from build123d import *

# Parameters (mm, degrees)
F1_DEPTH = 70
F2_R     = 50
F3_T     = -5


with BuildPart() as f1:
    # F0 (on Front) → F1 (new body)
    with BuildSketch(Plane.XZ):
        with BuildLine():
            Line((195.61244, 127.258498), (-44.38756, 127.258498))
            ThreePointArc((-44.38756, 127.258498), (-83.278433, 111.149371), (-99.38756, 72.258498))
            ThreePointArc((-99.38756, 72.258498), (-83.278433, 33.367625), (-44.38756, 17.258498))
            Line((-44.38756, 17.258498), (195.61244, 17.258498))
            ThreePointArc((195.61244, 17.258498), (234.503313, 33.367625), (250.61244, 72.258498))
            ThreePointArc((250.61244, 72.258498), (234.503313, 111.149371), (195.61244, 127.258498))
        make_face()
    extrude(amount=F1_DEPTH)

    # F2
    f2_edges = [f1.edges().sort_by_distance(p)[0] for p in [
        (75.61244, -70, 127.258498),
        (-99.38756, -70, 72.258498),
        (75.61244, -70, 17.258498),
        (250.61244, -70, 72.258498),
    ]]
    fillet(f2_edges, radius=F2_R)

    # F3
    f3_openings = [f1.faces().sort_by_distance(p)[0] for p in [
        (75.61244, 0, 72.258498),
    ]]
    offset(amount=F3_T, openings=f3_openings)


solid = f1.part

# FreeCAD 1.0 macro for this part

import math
import FreeCAD as App
import Part
import Sketcher
Q = App.Units.Quantity


def edges_at(feature, points):
    """Names of the edges that pass closest to the given points."""
    edges = feature.Shape.Edges
    near = lambda p: min(range(len(edges)), key=lambda i: edges[i].distToShape(Part.Vertex(*p))[0])
    return sorted({f"Edge{near(p) + 1}" for p in points})


def faces_at(feature, points):
    """Names of the faces that lie closest to the given points."""
    faces = feature.Shape.Faces
    near = lambda p: min(range(len(faces)), key=lambda i: faces[i].distToShape(Part.Vertex(*p))[0])
    return sorted({f"Face{near(p) + 1}" for p in points})

doc = App.newDocument("Part")
body = doc.addObject("PartDesign::Body", "Body")

# Sketch on XZ plane
sketch1 = doc.addObject("Sketcher::SketchObject", "Sketch")
body.addObject(sketch1)
sketch1.AttachmentSupport = (doc.XZ_Plane, [""])
sketch1.MapMode = "FlatFace"
sketch1.addGeometry(Part.LineSegment(App.Vector(196, 127, 0), App.Vector(-44, 127, 0)), False)
sketch1.addGeometry(Part.ArcOfCircle(Part.Circle(App.Vector(-44, 72, 0), App.Vector(0, 0, 1), 55), math.radians(90), math.radians(180)), False)
sketch1.addGeometry(Part.ArcOfCircle(Part.Circle(App.Vector(-44, 72, 0), App.Vector(0, 0, 1), 55), math.radians(180), math.radians(270)), False)
sketch1.addGeometry(Part.LineSegment(App.Vector(-44, 17, 0), App.Vector(196, 17, 0)), False)
sketch1.addGeometry(Part.ArcOfCircle(Part.Circle(App.Vector(196, 72, 0), App.Vector(0, 0, 1), 55), math.radians(-90), math.radians(0)), False)
sketch1.addGeometry(Part.ArcOfCircle(Part.Circle(App.Vector(196, 72, 0), App.Vector(0, 0, 1), 55), math.radians(0), math.radians(90)), False)
sketch1.addConstraint(Sketcher.Constraint("Tangent", 0, 2, 1, 1))
sketch1.addConstraint(Sketcher.Constraint("Tangent", 1, 2, 2, 1))
sketch1.addConstraint(Sketcher.Constraint("Tangent", 2, 2, 3, 1))
sketch1.addConstraint(Sketcher.Constraint("Tangent", 3, 2, 4, 1))
sketch1.addConstraint(Sketcher.Constraint("Tangent", 4, 2, 5, 1))
sketch1.addConstraint(Sketcher.Constraint("Tangent", 5, 2, 0, 1))
sketch1.addConstraint(Sketcher.Constraint("Horizontal", 0))
sketch1.addConstraint(Sketcher.Constraint("Horizontal", 3))
sketch1.addConstraint(Sketcher.Constraint("Equal", 1, 2))
sketch1.addConstraint(Sketcher.Constraint("Equal", 2, 4))
sketch1.addConstraint(Sketcher.Constraint("Horizontal", 5, 3, 1, 2))
sketch1.addConstraint(Sketcher.Constraint("Horizontal", 1, 2, 4, 2))
sketch1.addConstraint(Sketcher.Constraint("Radius", 1, Q("55 mm")))
sketch1.addConstraint(Sketcher.Constraint("DistanceX", 0, 2, 0, 1, Q("240 mm")))
sketch1.addConstraint(Sketcher.Constraint("DistanceY", -1, 1, 1, 3, Q("72.258498 mm")))
sketch1.addConstraint(Sketcher.Constraint("DistanceX", 1, 3, -1, 1, Q("44.38756 mm")))
pad1 = doc.addObject("PartDesign::Pad", "Pad")
body.addObject(pad1)
pad1.Profile = sketch1
pad1.Length = 70
doc.recompute()

fillet = doc.addObject("PartDesign::Fillet", "Fillet")
body.addObject(fillet)
fillet.Base = (pad1, edges_at(pad1, [
    (75.612, -70, 127.258),
    (-99.388, -35, 72.258),
    (75.612, -70, 17.258),
    (250.612, -35, 72.258),
]))
fillet.Radius = 50
doc.recompute()

thickness = doc.addObject("PartDesign::Thickness", "Thickness")
body.addObject(thickness)
thickness.Base = (fillet, faces_at(fillet, [(75.612, 0, 72.258)]))
thickness.Value = 5
thickness.Reversed = True
thickness.Join = "Arc"

doc.recompute()
